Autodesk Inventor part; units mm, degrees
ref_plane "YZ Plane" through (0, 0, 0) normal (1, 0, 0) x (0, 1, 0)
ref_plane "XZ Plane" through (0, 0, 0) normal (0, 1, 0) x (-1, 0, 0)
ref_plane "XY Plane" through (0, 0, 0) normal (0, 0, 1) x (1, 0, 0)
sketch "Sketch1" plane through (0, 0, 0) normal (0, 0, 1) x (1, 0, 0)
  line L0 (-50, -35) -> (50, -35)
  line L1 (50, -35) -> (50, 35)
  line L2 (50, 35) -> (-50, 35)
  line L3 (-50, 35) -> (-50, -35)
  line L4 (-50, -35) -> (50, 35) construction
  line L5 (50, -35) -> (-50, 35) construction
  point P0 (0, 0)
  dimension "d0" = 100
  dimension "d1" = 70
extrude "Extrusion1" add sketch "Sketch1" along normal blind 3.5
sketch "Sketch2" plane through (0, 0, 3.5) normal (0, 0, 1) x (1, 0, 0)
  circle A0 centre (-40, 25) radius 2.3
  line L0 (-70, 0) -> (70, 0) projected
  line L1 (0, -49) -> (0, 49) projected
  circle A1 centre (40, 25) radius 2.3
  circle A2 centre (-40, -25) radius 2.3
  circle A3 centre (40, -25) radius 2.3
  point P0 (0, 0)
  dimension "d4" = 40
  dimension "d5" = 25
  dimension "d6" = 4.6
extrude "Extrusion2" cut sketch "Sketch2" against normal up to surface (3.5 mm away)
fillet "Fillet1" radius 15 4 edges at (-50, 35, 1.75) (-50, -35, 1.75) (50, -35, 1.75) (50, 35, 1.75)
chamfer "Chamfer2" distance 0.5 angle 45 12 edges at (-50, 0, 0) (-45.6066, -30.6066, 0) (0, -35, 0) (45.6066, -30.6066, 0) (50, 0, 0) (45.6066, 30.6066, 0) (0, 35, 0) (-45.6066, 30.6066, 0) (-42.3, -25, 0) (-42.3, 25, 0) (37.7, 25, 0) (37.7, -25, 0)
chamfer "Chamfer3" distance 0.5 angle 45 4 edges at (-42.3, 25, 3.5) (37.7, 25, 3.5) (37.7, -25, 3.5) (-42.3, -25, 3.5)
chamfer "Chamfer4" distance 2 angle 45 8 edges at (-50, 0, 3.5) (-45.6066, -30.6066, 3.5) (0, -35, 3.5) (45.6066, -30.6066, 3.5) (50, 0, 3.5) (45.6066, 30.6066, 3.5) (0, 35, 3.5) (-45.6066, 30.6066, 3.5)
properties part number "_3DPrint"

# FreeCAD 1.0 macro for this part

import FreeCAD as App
import Part
import Sketcher
from FreeCAD import Vector


def edges_at(feature, points):
    """Names of the edges that pass closest to the given points."""
    edges = feature.Shape.Edges
    near = lambda p: min(range(len(edges)), key=lambda i: edges[i].distToShape(Part.Vertex(*p))[0])
    return sorted({f"Edge{near(p) + 1}" for p in points})


def add_polygon(sketch, points):
    """Adds a closed chain of lines whose ends are joined by coincident constraints."""
    first, n = sketch.GeometryCount, len(points)
    for a, b in zip(points, points[1:] + points[:1]):
        sketch.addGeometry(Part.LineSegment(App.Vector(*a, 0), App.Vector(*b, 0)), False)
    for i in range(n):
        sketch.addConstraint(Sketcher.Constraint("Coincident", first + i, 2, first + (i + 1) % n, 1))

doc = App.newDocument("Part")
body = doc.addObject("PartDesign::Body", "Body")

# Sketch on XY plane
sketch1 = body.newObject("Sketcher::SketchObject", "Sketch")
sketch1.AttachmentSupport = (doc.getObject("XY_Plane"), [""])
sketch1.MapMode = "FlatFace"
add_polygon(sketch1, [(-50, 35), (-50, -35), (50, -35), (50, 35)])  # lines 0-3
sketch1.addConstraint([
    Sketcher.Constraint("Vertical", 0),
    Sketcher.Constraint("Horizontal", 1),
    Sketcher.Constraint("Vertical", 2),
    Sketcher.Constraint("Horizontal", 3),
    Sketcher.Constraint("Symmetric", 0, 2, 2, 2, -1, 1),
    Sketcher.Constraint("DistanceX", 1, 1, 1, 2, 100.0),
    Sketcher.Constraint("DistanceY", 0, 2, 0, 1, 70.0),
])
pad1 = body.newObject("PartDesign::Pad", "Pad")
pad1.Profile = sketch1
pad1.Length = 3.5

# Sketch on XY plane
sketch2 = body.newObject("Sketcher::SketchObject", "Sketch001")
sketch2.AttachmentSupport = (doc.getObject("XY_Plane"), [""])
sketch2.MapMode = "FlatFace"
sketch2.AttachmentOffset = App.Placement(Vector(0, 0, 3.5), App.Rotation())
sketch2.addGeometry([
    Part.Circle(Vector(-40, 25, 0), Vector(0, 0, 1), 2.3),
    Part.Circle(Vector(40, 25, 0), Vector(0, 0, 1), 2.3),
    Part.Circle(Vector(-40, -25, 0), Vector(0, 0, 1), 2.3),
    Part.Circle(Vector(40, -25, 0), Vector(0, 0, 1), 2.3),
], False)
sketch2.addConstraint([
    Sketcher.Constraint("Equal", 0, 1),
    Sketcher.Constraint("Equal", 1, 2),
    Sketcher.Constraint("Equal", 2, 3),
    Sketcher.Constraint("Symmetric", 1, 3, 2, 3, -1, 1),
    Sketcher.Constraint("Symmetric", 0, 3, 3, 3, -1, 1),
    Sketcher.Constraint("Symmetric", 0, 3, 1, 3, -2),
    Sketcher.Constraint("Diameter", 0, 4.6),
    Sketcher.Constraint("DistanceX", 0, 3, -1, 1, 40.0),
    Sketcher.Constraint("DistanceY", -1, 1, 0, 3, 25.0),
])
pocket1 = body.newObject("PartDesign::Pocket", "Pocket")
pocket1.Profile = sketch2
pocket1.Length = 3.5
doc.recompute()

fillet = body.newObject("PartDesign::Fillet", "Fillet")
fillet.Base = (pocket1, edges_at(pocket1, [
    (-50, 35, 1.75),
    (-50, -35, 1.75),
    (50, -35, 1.75),
    (50, 35, 1.75),
]))
fillet.Radius = 15
doc.recompute()

chamfer = body.newObject("PartDesign::Chamfer", "Chamfer")
chamfer.Base = (fillet, edges_at(fillet, [
    (-50, 0, 0),
    (-45.607, -30.607, 0),
    (0, -35, 0),
    (45.607, -30.607, 0),
    (50, 0, 0),
    (45.607, 30.607, 0),
    (0, 35, 0),
    (-45.607, 30.607, 0),
    (-42.3, -25, 0),
    (-42.3, 25, 0),
    (37.7, 25, 0),
    (37.7, -25, 0),
]))
chamfer.Size = 0.5
doc.recompute()

chamfer2 = body.newObject("PartDesign::Chamfer", "Chamfer001")
chamfer2.Base = (chamfer, edges_at(chamfer, [
    (-42.3, 25, 3.5),
    (37.7, 25, 3.5),
    (37.7, -25, 3.5),
    (-42.3, -25, 3.5),
]))
chamfer2.Size = 0.5
doc.recompute()

chamfer3 = body.newObject("PartDesign::Chamfer", "Chamfer002")
chamfer3.Base = (chamfer2, edges_at(chamfer2, [
    (-50, 0, 3.5),
    (-45.607, -30.607, 3.5),
    (0, -35, 3.5),
    (45.607, -30.607, 3.5),
    (50, 0, 3.5),
    (45.607, 30.607, 3.5),
    (0, 35, 3.5),
    (-45.607, 30.607, 3.5),
]))
chamfer3.Size = 2

doc.recompute()
